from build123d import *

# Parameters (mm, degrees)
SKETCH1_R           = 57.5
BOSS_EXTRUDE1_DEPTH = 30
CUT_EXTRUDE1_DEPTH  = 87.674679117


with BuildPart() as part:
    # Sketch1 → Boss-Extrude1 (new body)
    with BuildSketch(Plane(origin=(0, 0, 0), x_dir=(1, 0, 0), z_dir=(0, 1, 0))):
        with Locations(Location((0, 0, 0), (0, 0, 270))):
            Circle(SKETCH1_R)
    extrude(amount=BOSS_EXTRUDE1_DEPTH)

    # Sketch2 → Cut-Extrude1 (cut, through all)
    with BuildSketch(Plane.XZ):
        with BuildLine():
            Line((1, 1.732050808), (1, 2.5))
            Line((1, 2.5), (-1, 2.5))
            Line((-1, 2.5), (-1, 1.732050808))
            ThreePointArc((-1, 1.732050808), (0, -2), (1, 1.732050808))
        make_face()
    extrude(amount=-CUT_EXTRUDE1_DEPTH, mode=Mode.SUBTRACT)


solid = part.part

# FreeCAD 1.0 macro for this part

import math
import FreeCAD as App
import Part
import Sketcher

V = App.Vector

doc = App.newDocument("Part")
body = doc.addObject("PartDesign::Body", "Body")

# Sketch on XZ plane
sketch1 = body.newObject("Sketcher::SketchObject", "Sketch")
sketch1.AttachmentSupport = (doc.getObject("XZ_Plane"), [""])
sketch1.MapMode = "FlatFace"
sketch1.addGeometry(Part.Circle(V(0, 0, 0), V(0, 0, 1), 58), False)
sketch1.addConstraint(Sketcher.Constraint("Coincident", 0, 3, -1, 1))
sketch1.addConstraint(Sketcher.Constraint("Diameter", 0, 115.0))
pad1 = body.newObject("PartDesign::Pad", "Pad")
pad1.Profile = sketch1
pad1.Length = 30
pad1.Reversed = True

# Sketch on XZ plane
sketch2 = body.newObject("Sketcher::SketchObject", "Sketch001")
sketch2.AttachmentSupport = (doc.getObject("XZ_Plane"), [""])
sketch2.MapMode = "FlatFace"
sketch2.addGeometry(Part.LineSegment(V(1, 1.7, 0), V(1, 2.5, 0)), False)
sketch2.addGeometry(Part.LineSegment(V(1, 2.5, 0), V(-1, 2.5, 0)), False)
sketch2.addGeometry(Part.LineSegment(V(-1, 2.5, 0), V(-1, 1.7, 0)), False)
sketch2.addGeometry(Part.ArcOfCircle(Part.Circle(V(0, 0, 0), V(0, 0, 1), 2), math.radians(120), math.radians(420)), False)
sketch2.addConstraint(Sketcher.Constraint("Coincident", 0, 2, 1, 1))
sketch2.addConstraint(Sketcher.Constraint("Coincident", 1, 2, 2, 1))
sketch2.addConstraint(Sketcher.Constraint("Coincident", 2, 2, 3, 1))
sketch2.addConstraint(Sketcher.Constraint("Coincident", 3, 2, 0, 1))
sketch2.addConstraint(Sketcher.Constraint("Vertical", 0))
sketch2.addConstraint(Sketcher.Constraint("Horizontal", 1))
sketch2.addConstraint(Sketcher.Constraint("Vertical", 2))
sketch2.addConstraint(Sketcher.Constraint("Coincident", 3, 3, -1, 1))
sketch2.addConstraint(Sketcher.Constraint("Horizontal", 2, 2, 3, 2))
sketch2.addConstraint(Sketcher.Constraint("Radius", 3, 2.0))
sketch2.addConstraint(Sketcher.Constraint("DistanceX", 1, 2, 1, 1, 2.0))
sketch2.addConstraint(Sketcher.Constraint("DistanceY", -1, 1, 0, 2, 2.5))
pocket1 = body.newObject("PartDesign::Pocket", "Pocket")
pocket1.Profile = sketch2
pocket1.Type = "ThroughAll"

doc.recompute()
